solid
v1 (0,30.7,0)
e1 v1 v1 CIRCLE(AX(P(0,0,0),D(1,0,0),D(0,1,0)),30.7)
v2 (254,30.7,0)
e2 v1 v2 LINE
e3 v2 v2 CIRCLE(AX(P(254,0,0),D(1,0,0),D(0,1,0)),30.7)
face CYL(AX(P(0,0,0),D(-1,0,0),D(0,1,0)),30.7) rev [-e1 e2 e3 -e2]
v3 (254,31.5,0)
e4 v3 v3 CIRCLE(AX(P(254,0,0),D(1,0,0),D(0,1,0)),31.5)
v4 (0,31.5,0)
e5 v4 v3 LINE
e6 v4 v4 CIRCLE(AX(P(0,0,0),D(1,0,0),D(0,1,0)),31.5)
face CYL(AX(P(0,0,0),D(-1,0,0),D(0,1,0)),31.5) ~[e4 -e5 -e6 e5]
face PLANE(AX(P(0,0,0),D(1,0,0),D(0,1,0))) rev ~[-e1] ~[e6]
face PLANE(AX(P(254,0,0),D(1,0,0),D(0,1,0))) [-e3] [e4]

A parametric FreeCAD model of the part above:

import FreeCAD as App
import Part
import Sketcher

doc = App.newDocument("Part")
body = doc.addObject("PartDesign::Body", "Body")

sketch1 = body.newObject("Sketcher::SketchObject", "Sketch")
sketch1.AttachmentSupport = (doc.getObject("YZ_Plane"), [""])
sketch1.MapMode = "FlatFace"
sketch1.addGeometry(Part.Circle(App.Vector(0, 0, 0), App.Vector(0, 0, 1), 32), False)
sketch1.addGeometry(Part.Circle(App.Vector(0, 0, 0), App.Vector(0, 0, 1), 31), False)
sketch1.addConstraint(Sketcher.Constraint("Coincident", 0, 3, -1, 1))
sketch1.addConstraint(Sketcher.Constraint("Coincident", 1, 3, -1, 1))
sketch1.addConstraint(Sketcher.Constraint("Diameter", 0, 63.0))
sketch1.addConstraint(Sketcher.Constraint("Diameter", 1, 61.4))
pad1 = body.newObject("PartDesign::Pad", "Pad")
pad1.Profile = sketch1
pad1.Length = 254

doc.recompute()
